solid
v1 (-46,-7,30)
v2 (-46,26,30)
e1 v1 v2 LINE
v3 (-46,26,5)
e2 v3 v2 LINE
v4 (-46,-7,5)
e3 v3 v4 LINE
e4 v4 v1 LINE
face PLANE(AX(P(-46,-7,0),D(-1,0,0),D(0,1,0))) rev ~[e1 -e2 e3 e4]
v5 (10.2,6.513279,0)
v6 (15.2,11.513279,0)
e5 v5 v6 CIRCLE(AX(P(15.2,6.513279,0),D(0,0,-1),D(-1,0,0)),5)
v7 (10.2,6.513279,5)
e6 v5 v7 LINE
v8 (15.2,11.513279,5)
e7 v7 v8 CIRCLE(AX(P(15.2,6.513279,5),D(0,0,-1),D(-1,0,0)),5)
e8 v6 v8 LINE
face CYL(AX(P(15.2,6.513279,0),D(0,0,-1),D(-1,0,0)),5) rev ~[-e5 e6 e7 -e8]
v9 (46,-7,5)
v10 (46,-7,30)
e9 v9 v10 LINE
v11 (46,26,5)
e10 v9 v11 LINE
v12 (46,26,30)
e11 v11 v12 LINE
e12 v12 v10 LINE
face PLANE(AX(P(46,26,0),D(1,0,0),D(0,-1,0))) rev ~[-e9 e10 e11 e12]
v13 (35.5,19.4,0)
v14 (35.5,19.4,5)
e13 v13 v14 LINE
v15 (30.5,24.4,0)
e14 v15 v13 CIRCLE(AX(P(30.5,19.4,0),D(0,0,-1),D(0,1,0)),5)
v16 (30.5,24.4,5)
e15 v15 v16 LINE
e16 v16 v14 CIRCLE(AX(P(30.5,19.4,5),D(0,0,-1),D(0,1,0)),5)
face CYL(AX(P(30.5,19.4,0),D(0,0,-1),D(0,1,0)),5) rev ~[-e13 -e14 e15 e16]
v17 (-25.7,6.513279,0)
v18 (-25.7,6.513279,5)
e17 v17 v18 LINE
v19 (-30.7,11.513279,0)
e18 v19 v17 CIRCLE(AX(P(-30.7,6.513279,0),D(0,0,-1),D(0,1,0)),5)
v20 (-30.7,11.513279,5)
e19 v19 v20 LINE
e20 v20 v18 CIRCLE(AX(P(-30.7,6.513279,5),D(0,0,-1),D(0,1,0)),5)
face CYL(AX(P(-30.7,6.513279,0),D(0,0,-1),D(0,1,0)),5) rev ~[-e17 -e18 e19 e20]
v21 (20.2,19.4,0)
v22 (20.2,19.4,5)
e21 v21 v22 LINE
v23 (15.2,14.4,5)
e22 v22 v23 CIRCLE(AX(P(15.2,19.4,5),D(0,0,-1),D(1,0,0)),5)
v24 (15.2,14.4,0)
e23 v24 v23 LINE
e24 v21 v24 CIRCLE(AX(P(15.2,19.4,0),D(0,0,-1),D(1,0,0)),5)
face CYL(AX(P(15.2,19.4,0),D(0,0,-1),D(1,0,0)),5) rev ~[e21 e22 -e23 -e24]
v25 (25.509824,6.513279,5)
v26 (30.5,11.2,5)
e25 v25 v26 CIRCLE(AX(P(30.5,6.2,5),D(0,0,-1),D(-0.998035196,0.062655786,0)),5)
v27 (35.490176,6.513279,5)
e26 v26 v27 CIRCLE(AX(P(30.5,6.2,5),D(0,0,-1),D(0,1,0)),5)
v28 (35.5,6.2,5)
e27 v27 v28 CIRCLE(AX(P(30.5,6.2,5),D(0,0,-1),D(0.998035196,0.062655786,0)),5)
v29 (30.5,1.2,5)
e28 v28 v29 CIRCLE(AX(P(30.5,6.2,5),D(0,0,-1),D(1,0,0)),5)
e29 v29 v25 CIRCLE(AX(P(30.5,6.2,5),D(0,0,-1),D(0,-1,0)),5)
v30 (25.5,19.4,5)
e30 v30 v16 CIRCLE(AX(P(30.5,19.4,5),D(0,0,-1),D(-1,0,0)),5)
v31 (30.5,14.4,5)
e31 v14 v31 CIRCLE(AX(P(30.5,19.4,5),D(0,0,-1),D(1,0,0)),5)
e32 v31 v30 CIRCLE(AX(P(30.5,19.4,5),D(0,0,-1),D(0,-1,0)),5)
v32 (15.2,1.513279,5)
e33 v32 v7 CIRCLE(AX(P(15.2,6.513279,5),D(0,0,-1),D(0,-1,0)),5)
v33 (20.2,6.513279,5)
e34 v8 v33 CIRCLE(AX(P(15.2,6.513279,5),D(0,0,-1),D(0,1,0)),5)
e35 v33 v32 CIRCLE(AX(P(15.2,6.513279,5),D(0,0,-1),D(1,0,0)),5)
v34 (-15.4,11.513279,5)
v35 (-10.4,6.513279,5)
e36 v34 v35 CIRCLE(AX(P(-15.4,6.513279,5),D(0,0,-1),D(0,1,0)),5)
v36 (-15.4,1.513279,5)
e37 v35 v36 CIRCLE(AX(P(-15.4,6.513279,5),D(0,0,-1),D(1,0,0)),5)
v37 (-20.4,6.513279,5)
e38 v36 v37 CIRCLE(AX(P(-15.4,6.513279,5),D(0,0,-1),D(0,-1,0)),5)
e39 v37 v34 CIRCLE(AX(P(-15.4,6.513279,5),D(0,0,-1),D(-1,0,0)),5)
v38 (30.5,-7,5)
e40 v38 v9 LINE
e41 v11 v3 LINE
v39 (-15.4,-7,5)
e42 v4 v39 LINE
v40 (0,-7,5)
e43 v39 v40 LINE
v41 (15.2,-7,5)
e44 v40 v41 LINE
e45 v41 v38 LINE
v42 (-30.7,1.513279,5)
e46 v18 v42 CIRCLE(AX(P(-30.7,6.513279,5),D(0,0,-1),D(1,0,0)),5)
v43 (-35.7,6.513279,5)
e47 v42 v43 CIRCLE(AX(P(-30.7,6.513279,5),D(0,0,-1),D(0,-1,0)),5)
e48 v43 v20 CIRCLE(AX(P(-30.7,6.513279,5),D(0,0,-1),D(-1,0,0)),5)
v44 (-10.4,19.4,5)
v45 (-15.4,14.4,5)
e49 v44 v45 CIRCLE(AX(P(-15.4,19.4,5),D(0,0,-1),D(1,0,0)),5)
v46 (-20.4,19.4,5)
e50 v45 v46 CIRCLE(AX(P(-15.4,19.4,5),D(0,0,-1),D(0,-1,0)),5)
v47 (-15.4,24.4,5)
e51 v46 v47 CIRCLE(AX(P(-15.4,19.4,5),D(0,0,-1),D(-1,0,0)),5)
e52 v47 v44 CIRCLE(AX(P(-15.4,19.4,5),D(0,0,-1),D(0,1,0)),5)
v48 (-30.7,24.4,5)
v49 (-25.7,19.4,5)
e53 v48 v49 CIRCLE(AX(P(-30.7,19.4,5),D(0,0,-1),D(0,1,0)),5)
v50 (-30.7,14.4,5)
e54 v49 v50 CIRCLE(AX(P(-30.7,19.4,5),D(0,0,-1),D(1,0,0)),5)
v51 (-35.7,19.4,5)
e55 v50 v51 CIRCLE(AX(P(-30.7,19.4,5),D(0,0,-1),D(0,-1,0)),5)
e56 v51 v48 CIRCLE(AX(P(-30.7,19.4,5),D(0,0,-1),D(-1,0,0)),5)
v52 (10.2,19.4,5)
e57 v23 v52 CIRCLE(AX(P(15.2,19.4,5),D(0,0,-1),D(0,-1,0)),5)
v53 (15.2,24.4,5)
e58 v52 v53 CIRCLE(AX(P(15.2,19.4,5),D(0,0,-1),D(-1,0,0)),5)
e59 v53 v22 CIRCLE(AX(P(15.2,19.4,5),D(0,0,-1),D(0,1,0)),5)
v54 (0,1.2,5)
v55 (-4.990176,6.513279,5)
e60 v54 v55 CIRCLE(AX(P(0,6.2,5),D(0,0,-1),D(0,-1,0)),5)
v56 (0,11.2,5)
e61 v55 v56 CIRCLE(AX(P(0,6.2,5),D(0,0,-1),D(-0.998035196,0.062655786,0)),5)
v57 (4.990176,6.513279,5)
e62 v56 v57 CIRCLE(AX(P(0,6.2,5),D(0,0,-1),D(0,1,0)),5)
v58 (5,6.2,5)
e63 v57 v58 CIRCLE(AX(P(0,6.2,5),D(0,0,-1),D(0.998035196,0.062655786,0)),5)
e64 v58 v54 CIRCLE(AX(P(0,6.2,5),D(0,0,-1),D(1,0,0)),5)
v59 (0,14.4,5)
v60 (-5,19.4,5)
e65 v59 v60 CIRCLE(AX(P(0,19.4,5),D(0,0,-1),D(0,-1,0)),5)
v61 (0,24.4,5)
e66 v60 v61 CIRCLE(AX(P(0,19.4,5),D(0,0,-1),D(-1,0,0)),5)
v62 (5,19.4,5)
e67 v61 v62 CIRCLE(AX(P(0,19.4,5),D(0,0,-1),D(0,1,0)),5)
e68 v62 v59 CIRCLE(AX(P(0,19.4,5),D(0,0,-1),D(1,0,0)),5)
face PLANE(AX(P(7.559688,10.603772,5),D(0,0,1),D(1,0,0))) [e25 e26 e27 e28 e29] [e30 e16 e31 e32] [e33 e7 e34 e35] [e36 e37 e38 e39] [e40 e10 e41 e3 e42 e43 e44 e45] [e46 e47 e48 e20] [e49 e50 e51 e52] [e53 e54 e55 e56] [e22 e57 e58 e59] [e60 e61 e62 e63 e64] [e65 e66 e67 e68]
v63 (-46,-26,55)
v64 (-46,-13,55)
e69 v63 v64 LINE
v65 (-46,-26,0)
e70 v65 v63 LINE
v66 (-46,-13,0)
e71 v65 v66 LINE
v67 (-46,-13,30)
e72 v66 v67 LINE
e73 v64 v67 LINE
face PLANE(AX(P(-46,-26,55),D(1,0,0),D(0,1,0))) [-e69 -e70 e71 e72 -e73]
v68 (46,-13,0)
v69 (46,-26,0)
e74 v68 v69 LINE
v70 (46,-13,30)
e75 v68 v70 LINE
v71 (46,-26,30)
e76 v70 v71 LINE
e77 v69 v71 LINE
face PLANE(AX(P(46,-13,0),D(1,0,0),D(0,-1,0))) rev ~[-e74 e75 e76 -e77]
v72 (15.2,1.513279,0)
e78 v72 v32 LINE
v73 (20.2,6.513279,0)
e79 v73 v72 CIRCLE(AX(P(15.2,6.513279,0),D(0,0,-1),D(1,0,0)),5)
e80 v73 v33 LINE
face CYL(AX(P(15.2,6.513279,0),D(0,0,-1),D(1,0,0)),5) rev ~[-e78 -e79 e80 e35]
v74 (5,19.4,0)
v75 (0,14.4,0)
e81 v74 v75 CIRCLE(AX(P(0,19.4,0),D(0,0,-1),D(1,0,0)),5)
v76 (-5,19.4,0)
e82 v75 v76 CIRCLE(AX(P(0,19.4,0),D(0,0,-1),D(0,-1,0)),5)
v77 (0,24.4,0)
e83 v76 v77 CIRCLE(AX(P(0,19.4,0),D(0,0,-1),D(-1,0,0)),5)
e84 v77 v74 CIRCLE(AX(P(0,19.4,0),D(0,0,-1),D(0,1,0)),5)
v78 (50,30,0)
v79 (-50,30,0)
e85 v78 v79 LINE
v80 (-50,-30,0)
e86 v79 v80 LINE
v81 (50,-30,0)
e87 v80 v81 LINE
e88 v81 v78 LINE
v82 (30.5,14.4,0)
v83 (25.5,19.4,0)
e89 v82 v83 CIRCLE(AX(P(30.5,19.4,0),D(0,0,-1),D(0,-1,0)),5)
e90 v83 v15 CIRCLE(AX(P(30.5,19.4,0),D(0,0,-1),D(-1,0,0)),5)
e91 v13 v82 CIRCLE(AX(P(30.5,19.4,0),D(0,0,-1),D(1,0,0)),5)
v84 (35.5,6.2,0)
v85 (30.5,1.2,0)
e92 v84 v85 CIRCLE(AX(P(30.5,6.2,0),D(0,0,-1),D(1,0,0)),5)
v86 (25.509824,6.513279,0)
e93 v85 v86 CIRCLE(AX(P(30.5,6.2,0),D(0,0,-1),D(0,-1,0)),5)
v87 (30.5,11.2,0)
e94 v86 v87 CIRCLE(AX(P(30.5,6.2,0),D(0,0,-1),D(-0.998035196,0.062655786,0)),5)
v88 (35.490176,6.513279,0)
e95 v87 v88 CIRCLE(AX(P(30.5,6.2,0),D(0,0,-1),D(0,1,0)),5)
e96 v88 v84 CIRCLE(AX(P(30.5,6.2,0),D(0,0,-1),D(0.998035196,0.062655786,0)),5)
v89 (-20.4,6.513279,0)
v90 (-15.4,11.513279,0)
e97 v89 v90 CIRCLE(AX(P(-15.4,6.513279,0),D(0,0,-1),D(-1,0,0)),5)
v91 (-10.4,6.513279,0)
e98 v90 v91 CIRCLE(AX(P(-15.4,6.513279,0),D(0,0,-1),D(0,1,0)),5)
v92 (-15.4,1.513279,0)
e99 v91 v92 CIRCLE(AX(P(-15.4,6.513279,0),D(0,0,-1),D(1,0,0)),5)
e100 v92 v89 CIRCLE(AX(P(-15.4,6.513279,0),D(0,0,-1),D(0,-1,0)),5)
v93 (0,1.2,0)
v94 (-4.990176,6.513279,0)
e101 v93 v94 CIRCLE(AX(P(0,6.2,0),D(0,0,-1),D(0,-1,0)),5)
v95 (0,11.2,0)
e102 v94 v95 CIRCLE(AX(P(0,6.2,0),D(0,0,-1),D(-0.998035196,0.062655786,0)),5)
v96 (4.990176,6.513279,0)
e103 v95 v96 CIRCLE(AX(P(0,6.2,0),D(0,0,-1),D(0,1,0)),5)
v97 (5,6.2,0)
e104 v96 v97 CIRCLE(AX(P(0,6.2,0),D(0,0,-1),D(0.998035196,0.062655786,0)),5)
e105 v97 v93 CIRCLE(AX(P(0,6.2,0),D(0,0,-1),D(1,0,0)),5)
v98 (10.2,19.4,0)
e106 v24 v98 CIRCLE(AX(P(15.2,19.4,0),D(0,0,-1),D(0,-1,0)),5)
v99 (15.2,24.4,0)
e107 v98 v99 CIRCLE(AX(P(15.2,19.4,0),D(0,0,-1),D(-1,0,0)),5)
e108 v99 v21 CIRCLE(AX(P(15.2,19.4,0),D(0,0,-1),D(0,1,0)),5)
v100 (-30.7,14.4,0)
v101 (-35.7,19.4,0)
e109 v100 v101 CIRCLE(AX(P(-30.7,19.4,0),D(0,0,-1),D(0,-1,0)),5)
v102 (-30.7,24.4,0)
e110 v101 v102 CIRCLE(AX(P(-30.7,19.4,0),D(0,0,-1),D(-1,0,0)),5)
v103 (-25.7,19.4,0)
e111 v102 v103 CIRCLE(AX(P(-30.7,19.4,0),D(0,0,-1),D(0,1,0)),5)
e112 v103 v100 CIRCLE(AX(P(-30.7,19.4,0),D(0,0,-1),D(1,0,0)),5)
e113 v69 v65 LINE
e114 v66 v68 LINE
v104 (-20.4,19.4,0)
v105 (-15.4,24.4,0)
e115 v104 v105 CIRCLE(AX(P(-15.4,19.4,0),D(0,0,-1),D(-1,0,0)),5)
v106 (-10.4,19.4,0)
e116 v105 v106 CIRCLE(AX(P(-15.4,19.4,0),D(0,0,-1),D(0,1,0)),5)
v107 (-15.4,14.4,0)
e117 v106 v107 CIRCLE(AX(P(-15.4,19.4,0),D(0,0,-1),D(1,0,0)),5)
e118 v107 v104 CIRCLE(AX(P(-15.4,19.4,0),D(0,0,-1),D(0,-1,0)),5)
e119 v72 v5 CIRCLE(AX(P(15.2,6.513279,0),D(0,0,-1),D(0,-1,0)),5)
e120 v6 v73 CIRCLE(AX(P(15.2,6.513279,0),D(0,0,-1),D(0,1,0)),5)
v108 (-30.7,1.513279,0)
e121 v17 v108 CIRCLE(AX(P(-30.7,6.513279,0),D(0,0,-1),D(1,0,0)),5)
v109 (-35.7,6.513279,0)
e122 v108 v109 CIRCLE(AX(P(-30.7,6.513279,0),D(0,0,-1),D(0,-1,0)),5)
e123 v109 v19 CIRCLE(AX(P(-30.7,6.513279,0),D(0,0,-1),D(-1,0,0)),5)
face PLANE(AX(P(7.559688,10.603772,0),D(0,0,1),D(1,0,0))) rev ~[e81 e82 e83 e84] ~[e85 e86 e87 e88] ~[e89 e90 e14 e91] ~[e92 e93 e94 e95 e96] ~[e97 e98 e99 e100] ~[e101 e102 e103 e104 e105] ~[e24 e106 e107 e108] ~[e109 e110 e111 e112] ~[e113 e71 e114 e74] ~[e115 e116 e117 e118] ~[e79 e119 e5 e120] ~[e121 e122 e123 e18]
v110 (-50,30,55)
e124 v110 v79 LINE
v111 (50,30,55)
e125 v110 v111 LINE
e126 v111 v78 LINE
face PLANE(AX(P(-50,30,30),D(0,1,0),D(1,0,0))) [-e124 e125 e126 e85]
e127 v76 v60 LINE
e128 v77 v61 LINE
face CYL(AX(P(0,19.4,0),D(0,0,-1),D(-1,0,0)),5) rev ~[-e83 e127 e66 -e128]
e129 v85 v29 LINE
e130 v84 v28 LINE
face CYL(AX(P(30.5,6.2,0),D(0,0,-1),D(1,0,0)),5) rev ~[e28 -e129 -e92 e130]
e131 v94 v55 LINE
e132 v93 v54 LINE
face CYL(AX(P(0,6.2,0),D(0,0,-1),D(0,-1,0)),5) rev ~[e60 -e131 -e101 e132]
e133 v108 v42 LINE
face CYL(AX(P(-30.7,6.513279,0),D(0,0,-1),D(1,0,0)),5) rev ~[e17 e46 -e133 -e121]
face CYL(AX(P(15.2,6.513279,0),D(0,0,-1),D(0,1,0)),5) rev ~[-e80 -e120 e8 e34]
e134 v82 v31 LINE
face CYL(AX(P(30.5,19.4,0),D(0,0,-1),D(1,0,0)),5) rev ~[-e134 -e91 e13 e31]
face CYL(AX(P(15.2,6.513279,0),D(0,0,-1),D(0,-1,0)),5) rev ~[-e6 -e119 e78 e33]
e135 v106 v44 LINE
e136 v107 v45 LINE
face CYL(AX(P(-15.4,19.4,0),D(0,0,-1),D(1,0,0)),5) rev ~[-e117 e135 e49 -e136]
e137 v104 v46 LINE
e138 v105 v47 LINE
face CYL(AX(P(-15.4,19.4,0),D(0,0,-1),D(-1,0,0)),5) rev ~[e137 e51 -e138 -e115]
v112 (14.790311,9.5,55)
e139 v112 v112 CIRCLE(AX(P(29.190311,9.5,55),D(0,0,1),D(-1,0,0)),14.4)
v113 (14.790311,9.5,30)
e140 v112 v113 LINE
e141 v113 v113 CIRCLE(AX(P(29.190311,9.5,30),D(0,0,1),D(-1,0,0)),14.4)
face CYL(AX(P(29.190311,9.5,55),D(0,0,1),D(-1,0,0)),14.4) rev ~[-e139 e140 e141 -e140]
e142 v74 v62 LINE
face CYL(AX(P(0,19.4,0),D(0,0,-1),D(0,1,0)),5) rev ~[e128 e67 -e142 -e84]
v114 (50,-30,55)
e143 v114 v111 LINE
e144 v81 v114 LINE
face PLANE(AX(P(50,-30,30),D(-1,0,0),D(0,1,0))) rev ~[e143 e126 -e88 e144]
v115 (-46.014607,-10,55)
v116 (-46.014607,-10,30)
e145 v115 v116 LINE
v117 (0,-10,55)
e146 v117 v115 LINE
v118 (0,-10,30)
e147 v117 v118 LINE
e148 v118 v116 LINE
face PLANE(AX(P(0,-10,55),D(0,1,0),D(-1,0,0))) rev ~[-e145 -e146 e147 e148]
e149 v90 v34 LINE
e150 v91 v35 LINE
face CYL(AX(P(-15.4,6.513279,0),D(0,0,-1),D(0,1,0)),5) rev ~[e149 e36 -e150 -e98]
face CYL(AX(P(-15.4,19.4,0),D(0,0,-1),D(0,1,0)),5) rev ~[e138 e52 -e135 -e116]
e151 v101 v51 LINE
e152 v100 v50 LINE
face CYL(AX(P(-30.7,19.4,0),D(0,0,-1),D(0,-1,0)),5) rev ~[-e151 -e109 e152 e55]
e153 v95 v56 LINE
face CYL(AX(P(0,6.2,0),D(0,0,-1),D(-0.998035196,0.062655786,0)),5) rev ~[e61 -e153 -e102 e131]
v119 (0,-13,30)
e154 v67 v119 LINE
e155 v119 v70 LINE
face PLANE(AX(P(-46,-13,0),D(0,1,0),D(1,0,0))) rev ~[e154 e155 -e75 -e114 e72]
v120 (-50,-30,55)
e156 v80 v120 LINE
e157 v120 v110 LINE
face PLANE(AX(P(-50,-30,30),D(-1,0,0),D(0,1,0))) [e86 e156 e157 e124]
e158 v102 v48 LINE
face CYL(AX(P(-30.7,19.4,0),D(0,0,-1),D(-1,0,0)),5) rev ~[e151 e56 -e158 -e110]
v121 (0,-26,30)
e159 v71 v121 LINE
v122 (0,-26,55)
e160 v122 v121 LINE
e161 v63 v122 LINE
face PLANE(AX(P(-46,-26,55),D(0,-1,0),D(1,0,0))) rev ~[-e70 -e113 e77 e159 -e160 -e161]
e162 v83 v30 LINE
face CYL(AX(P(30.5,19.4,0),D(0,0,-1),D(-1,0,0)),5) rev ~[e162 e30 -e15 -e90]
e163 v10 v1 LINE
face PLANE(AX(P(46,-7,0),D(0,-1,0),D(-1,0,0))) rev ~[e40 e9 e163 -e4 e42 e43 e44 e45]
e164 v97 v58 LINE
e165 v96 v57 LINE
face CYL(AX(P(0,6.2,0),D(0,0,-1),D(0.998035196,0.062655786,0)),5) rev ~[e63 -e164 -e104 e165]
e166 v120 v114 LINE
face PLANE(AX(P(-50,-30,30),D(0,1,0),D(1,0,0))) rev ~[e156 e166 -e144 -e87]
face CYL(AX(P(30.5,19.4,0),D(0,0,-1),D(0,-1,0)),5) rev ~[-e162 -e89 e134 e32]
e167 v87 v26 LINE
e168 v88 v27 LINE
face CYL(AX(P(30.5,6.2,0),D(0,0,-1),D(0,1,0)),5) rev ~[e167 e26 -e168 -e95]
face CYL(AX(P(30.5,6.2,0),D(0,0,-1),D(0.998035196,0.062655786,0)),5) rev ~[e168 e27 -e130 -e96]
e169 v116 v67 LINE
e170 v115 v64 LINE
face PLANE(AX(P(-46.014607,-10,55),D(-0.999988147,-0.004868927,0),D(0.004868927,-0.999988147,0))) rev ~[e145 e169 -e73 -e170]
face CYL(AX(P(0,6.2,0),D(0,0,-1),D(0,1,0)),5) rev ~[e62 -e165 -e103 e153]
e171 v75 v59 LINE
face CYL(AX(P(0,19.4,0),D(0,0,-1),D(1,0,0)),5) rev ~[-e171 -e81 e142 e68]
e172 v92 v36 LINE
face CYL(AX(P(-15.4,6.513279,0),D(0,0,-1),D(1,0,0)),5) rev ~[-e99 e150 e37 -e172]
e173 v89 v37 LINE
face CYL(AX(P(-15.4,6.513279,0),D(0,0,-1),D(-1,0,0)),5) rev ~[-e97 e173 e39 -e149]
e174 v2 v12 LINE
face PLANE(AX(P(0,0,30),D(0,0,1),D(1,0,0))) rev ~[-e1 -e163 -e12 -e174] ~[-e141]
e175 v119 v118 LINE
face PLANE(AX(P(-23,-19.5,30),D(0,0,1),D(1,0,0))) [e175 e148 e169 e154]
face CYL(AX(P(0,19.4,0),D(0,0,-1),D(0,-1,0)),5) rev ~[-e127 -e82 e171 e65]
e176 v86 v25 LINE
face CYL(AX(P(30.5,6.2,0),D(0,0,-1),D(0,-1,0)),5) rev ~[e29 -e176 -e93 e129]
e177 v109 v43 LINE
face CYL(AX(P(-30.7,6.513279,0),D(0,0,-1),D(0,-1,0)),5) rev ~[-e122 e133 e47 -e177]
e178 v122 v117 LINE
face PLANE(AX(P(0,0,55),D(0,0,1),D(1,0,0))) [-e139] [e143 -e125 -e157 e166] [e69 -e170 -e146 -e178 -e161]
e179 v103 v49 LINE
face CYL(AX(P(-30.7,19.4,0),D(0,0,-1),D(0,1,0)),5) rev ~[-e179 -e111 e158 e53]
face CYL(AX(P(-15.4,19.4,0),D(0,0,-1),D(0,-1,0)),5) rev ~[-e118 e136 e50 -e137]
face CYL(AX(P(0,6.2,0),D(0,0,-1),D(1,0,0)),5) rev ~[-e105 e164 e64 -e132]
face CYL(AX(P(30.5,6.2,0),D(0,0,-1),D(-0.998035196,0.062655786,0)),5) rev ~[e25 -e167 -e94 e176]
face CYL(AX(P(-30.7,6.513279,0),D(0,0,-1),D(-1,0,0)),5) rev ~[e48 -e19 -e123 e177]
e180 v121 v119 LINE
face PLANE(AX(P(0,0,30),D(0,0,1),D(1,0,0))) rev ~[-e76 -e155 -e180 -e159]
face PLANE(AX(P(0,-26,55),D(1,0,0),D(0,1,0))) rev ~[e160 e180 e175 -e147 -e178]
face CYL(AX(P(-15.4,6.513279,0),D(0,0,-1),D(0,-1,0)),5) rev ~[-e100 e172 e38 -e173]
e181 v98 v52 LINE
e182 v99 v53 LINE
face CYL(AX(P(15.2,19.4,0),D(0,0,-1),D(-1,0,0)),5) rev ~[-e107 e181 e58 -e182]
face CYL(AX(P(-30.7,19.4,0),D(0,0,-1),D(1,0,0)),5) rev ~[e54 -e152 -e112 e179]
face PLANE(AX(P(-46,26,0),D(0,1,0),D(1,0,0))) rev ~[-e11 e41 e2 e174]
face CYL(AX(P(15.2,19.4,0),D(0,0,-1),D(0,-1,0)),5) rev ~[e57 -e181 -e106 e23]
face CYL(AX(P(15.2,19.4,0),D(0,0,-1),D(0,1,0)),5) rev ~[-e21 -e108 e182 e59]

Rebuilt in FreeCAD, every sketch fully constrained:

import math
import FreeCAD as App
import Part
import Sketcher
from FreeCAD import Vector

doc = App.newDocument("Part")
body = doc.addObject("PartDesign::Body", "Body")

# Sketch on XY plane
sketch1 = doc.addObject("Sketcher::SketchObject", "Sketch")
body.addObject(sketch1)
sketch1.AttachmentSupport = (doc.XY_Plane, [""])
sketch1.MapMode = "FlatFace"
sketch1.addGeometry([
    Part.LineSegment(Vector(50, -30, 0), Vector(50, 30, 0)),  # 0
    Part.LineSegment(Vector(50, 30, 0), Vector(-50, 30, 0)),  # 1
    Part.LineSegment(Vector(-50, 30, 0), Vector(-50, -30, 0)),  # 2
    Part.LineSegment(Vector(-50, -30, 0), Vector(50, -30, 0)),  # 3
    Part.LineSegment(Vector(46, 26, 0), Vector(46, -7, 0)),  # 4
    Part.LineSegment(Vector(46, -7, 0), Vector(-46, -7, 0)),  # 5
    Part.LineSegment(Vector(-46, -7, 0), Vector(-46, 26, 0)),  # 6
    Part.LineSegment(Vector(-46, 26, 0), Vector(46, 26, 0)),  # 7
    Part.LineSegment(Vector(46, -13, 0), Vector(46, -26, 0)),  # 8
    Part.LineSegment(Vector(46, -26, 0), Vector(-46, -26, 0)),  # 9
    Part.LineSegment(Vector(-46, -26, 0), Vector(-46, -13, 0)),  # 10
    Part.LineSegment(Vector(-46, -13, 0), Vector(46, -13, 0)),  # 11
], False)
sketch1.addConstraint([
    Sketcher.Constraint("Coincident", 0, 2, 1, 1),
    Sketcher.Constraint("Coincident", 1, 2, 2, 1),
    Sketcher.Constraint("Coincident", 2, 2, 3, 1),
    Sketcher.Constraint("Coincident", 3, 2, 0, 1),
    Sketcher.Constraint("Coincident", 4, 2, 5, 1),
    Sketcher.Constraint("Coincident", 5, 2, 6, 1),
    Sketcher.Constraint("Coincident", 6, 2, 7, 1),
    Sketcher.Constraint("Coincident", 7, 2, 4, 1),
    Sketcher.Constraint("Coincident", 8, 2, 9, 1),
    Sketcher.Constraint("Coincident", 9, 2, 10, 1),
    Sketcher.Constraint("Coincident", 10, 2, 11, 1),
    Sketcher.Constraint("Coincident", 11, 2, 8, 1),
    Sketcher.Constraint("Vertical", 0),
    Sketcher.Constraint("Horizontal", 1),
    Sketcher.Constraint("Vertical", 2),
    Sketcher.Constraint("Horizontal", 3),
    Sketcher.Constraint("Vertical", 4),
    Sketcher.Constraint("Horizontal", 5),
    Sketcher.Constraint("Vertical", 6),
    Sketcher.Constraint("Horizontal", 7),
    Sketcher.Constraint("Vertical", 8),
    Sketcher.Constraint("Horizontal", 9),
    Sketcher.Constraint("Vertical", 10),
    Sketcher.Constraint("Horizontal", 11),
    Sketcher.Constraint("Symmetric", 0, 2, 2, 2, -1, 1),
    Sketcher.Constraint("Symmetric", 6, 2, 8, 2, -1, 1),
    Sketcher.Constraint("Vertical", 7, 2, 8, 2),
    Sketcher.Constraint("Vertical", 6, 2, 9, 2),
    Sketcher.Constraint("DistanceX", 1, 2, 1, 1, 100.0),
    Sketcher.Constraint("DistanceX", 5, 2, 5, 1, 92.0),
    Sketcher.Constraint("DistanceY", 0, 1, 0, 2, 60.0),
    Sketcher.Constraint("DistanceY", 4, 2, 4, 1, 33.0),
    Sketcher.Constraint("DistanceY", 8, 2, 8, 1, 13.0),
    Sketcher.Constraint("DistanceY", 4, 2, -1, 1, 7.0),
])
pad1 = doc.addObject("PartDesign::Pad", "Pad")
body.addObject(pad1)
pad1.Profile = sketch1
pad1.Length = 30

# Sketch on XY plane
sketch2 = doc.addObject("Sketcher::SketchObject", "Sketch001")
body.addObject(sketch2)
sketch2.AttachmentSupport = (doc.XY_Plane, [""])
sketch2.MapMode = "FlatFace"
sketch2.addGeometry([
    Part.LineSegment(Vector(46, 26, 0), Vector(-46, 26, 0)),  # 0
    Part.LineSegment(Vector(-46, 26, 0), Vector(-46, -7, 0)),  # 1
    Part.LineSegment(Vector(-46, -7, 0), Vector(-15.4, -7, 0)),  # 2
    Part.LineSegment(Vector(-15.4, -7, 0), Vector(0, -7, 0)),  # 3
    Part.LineSegment(Vector(0, -7, 0), Vector(15.2, -7, 0)),  # 4
    Part.LineSegment(Vector(15.2, -7, 0), Vector(30.5, -7, 0)),  # 5
    Part.LineSegment(Vector(30.5, -7, 0), Vector(46, -7, 0)),  # 6
    Part.LineSegment(Vector(46, -7, 0), Vector(46, 26, 0)),  # 7
    Part.ArcOfCircle(Part.Circle(Vector(15.2, 19.4, 0), Vector(0, 0, 1), 5), math.radians(180), math.radians(270)),  # 8
    Part.ArcOfCircle(Part.Circle(Vector(15.2, 19.4, 0), Vector(0, 0, 1), 5), math.radians(90), math.radians(180)),  # 9
    Part.ArcOfCircle(Part.Circle(Vector(15.2, 19.4, 0), Vector(0, 0, 1), 5), math.radians(0), math.radians(90)),  # 10
    Part.ArcOfCircle(Part.Circle(Vector(15.2, 19.4, 0), Vector(0, 0, 1), 5), math.radians(-90), math.radians(0)),  # 11
    Part.ArcOfCircle(Part.Circle(Vector(0, 19.4, 0), Vector(0, 0, 1), 5), math.radians(0), math.radians(90)),  # 12
    Part.ArcOfCircle(Part.Circle(Vector(0, 19.4, 0), Vector(0, 0, 1), 5), math.radians(-90), math.radians(0)),  # 13
    Part.ArcOfCircle(Part.Circle(Vector(0, 19.4, 0), Vector(0, 0, 1), 5), math.radians(180), math.radians(270)),  # 14
    Part.ArcOfCircle(Part.Circle(Vector(0, 19.4, 0), Vector(0, 0, 1), 5), math.radians(90), math.radians(180)),  # 15
    Part.ArcOfCircle(Part.Circle(Vector(-15.4, 19.4, 0), Vector(0, 0, 1), 5), math.radians(-90), math.radians(0)),  # 16
    Part.ArcOfCircle(Part.Circle(Vector(-15.4, 19.4, 0), Vector(0, 0, 1), 5), math.radians(180), math.radians(270)),  # 17
    Part.ArcOfCircle(Part.Circle(Vector(-15.4, 19.4, 0), Vector(0, 0, 1), 5), math.radians(90), math.radians(180)),  # 18
    Part.ArcOfCircle(Part.Circle(Vector(-15.4, 19.4, 0), Vector(0, 0, 1), 5), math.radians(0), math.radians(90)),  # 19
    Part.ArcOfCircle(Part.Circle(Vector(-15.4, 6.51, 0), Vector(0, 0, 1), 5), math.radians(0), math.radians(90)),  # 20
    Part.ArcOfCircle(Part.Circle(Vector(-15.4, 6.51, 0), Vector(0, 0, 1), 5), math.radians(-90), math.radians(0)),  # 21
    Part.ArcOfCircle(Part.Circle(Vector(-15.4, 6.51, 0), Vector(0, 0, 1), 5), math.radians(180), math.radians(270)),  # 22
    Part.ArcOfCircle(Part.Circle(Vector(-15.4, 6.51, 0), Vector(0, 0, 1), 5), math.radians(90), math.radians(180)),  # 23
    Part.ArcOfCircle(Part.Circle(Vector(-30.7, 6.51, 0), Vector(0, 0, 1), 5), math.radians(180), math.radians(270)),  # 24
    Part.ArcOfCircle(Part.Circle(Vector(-30.7, 6.51, 0), Vector(0, 0, 1), 5), math.radians(90), math.radians(180)),  # 25
    Part.ArcOfCircle(Part.Circle(Vector(-30.7, 6.51, 0), Vector(0, 0, 1), 5), math.radians(0), math.radians(90)),  # 26
    Part.ArcOfCircle(Part.Circle(Vector(-30.7, 6.51, 0), Vector(0, 0, 1), 5), math.radians(-90), math.radians(0)),  # 27
    Part.ArcOfCircle(Part.Circle(Vector(-30.7, 19.4, 0), Vector(0, 0, 1), 5), math.radians(180), math.radians(270)),  # 28
    Part.ArcOfCircle(Part.Circle(Vector(-30.7, 19.4, 0), Vector(0, 0, 1), 5), math.radians(90), math.radians(180)),  # 29
    Part.ArcOfCircle(Part.Circle(Vector(-30.7, 19.4, 0), Vector(0, 0, 1), 5), math.radians(0), math.radians(90)),  # 30
    Part.ArcOfCircle(Part.Circle(Vector(-30.7, 19.4, 0), Vector(0, 0, 1), 5), math.radians(-90), math.radians(0)),  # 31
    Part.ArcOfCircle(Part.Circle(Vector(0, 6.2, 0), Vector(0, 0, 1), 5), math.radians(4), math.radians(90)),  # 32
    Part.ArcOfCircle(Part.Circle(Vector(0, 6.2, 0), Vector(0, 0, 1), 5), math.radians(0), math.radians(3.59)),  # 33
    Part.ArcOfCircle(Part.Circle(Vector(0, 6.2, 0), Vector(0, 0, 1), 5), math.radians(-90), math.radians(0)),  # 34
    Part.ArcOfCircle(Part.Circle(Vector(0, 6.2, 0), Vector(0, 0, 1), 5), math.radians(176), math.radians(270)),  # 35
    Part.ArcOfCircle(Part.Circle(Vector(0, 6.2, 0), Vector(0, 0, 1), 5), math.radians(90), math.radians(176)),  # 36
    Part.ArcOfCircle(Part.Circle(Vector(30.5, 6.2, 0), Vector(0, 0, 1), 5), math.radians(176), math.radians(270)),  # 37
    Part.ArcOfCircle(Part.Circle(Vector(30.5, 6.2, 0), Vector(0, 0, 1), 5), math.radians(90), math.radians(176)),  # 38
    Part.ArcOfCircle(Part.Circle(Vector(30.5, 6.2, 0), Vector(0, 0, 1), 5), math.radians(4), math.radians(90)),  # 39
    Part.ArcOfCircle(Part.Circle(Vector(30.5, 6.2, 0), Vector(0, 0, 1), 5), math.radians(0), math.radians(3.59)),  # 40
    Part.ArcOfCircle(Part.Circle(Vector(30.5, 6.2, 0), Vector(0, 0, 1), 5), math.radians(-90), math.radians(0)),  # 41
    Part.ArcOfCircle(Part.Circle(Vector(30.5, 19.4, 0), Vector(0, 0, 1), 5), math.radians(180), math.radians(270)),  # 42
    Part.ArcOfCircle(Part.Circle(Vector(30.5, 19.4, 0), Vector(0, 0, 1), 5), math.radians(90), math.radians(180)),  # 43
    Part.ArcOfCircle(Part.Circle(Vector(30.5, 19.4, 0), Vector(0, 0, 1), 5), math.radians(0), math.radians(90)),  # 44
    Part.ArcOfCircle(Part.Circle(Vector(30.5, 19.4, 0), Vector(0, 0, 1), 5), math.radians(-90), math.radians(0)),  # 45
    Part.ArcOfCircle(Part.Circle(Vector(15.2, 6.51, 0), Vector(0, 0, 1), 5), math.radians(-90), math.radians(0)),  # 46
    Part.ArcOfCircle(Part.Circle(Vector(15.2, 6.51, 0), Vector(0, 0, 1), 5), math.radians(180), math.radians(270)),  # 47
    Part.ArcOfCircle(Part.Circle(Vector(15.2, 6.51, 0), Vector(0, 0, 1), 5), math.radians(90), math.radians(180)),  # 48
    Part.ArcOfCircle(Part.Circle(Vector(15.2, 6.51, 0), Vector(0, 0, 1), 5), math.radians(0), math.radians(90)),  # 49
], False)
sketch2.addConstraint([
    Sketcher.Constraint("Coincident", 0, 2, 1, 1),
    Sketcher.Constraint("Coincident", 1, 2, 2, 1),
    Sketcher.Constraint("Coincident", 2, 2, 3, 1),
    Sketcher.Constraint("Coincident", 3, 2, 4, 1),
    Sketcher.Constraint("Coincident", 4, 2, 5, 1),
    Sketcher.Constraint("Coincident", 5, 2, 6, 1),
    Sketcher.Constraint("Coincident", 6, 2, 7, 1),
    Sketcher.Constraint("Coincident", 7, 2, 0, 1),
    Sketcher.Constraint("Tangent", 8, 1, 9, 2),
    Sketcher.Constraint("Tangent", 9, 1, 10, 2),
    Sketcher.Constraint("Tangent", 10, 1, 11, 2),
    Sketcher.Constraint("Tangent", 11, 1, 8, 2),
    Sketcher.Constraint("Tangent", 12, 1, 13, 2),
    Sketcher.Constraint("Tangent", 13, 1, 14, 2),
    Sketcher.Constraint("Tangent", 14, 1, 15, 2),
    Sketcher.Constraint("Tangent", 15, 1, 12, 2),
    Sketcher.Constraint("Tangent", 16, 1, 17, 2),
    Sketcher.Constraint("Tangent", 17, 1, 18, 2),
    Sketcher.Constraint("Tangent", 18, 1, 19, 2),
    Sketcher.Constraint("Tangent", 19, 1, 16, 2),
    Sketcher.Constraint("Tangent", 20, 1, 21, 2),
    Sketcher.Constraint("Tangent", 21, 1, 22, 2),
    Sketcher.Constraint("Tangent", 22, 1, 23, 2),
    Sketcher.Constraint("Tangent", 23, 1, 20, 2),
    Sketcher.Constraint("Tangent", 24, 1, 25, 2),
    Sketcher.Constraint("Tangent", 25, 1, 26, 2),
    Sketcher.Constraint("Tangent", 26, 1, 27, 2),
    Sketcher.Constraint("Tangent", 27, 1, 24, 2),
    Sketcher.Constraint("Tangent", 28, 1, 29, 2),
    Sketcher.Constraint("Tangent", 29, 1, 30, 2),
    Sketcher.Constraint("Tangent", 30, 1, 31, 2),
    Sketcher.Constraint("Tangent", 31, 1, 28, 2),
    Sketcher.Constraint("Tangent", 32, 1, 33, 2),
    Sketcher.Constraint("Tangent", 33, 1, 34, 2),
    Sketcher.Constraint("Tangent", 34, 1, 35, 2),
    Sketcher.Constraint("Tangent", 35, 1, 36, 2),
    Sketcher.Constraint("Tangent", 36, 1, 32, 2),
    Sketcher.Constraint("Tangent", 37, 1, 38, 2),
    Sketcher.Constraint("Tangent", 38, 1, 39, 2),
    Sketcher.Constraint("Tangent", 39, 1, 40, 2),
    Sketcher.Constraint("Tangent", 40, 1, 41, 2),
    Sketcher.Constraint("Tangent", 41, 1, 37, 2),
    Sketcher.Constraint("Tangent", 42, 1, 43, 2),
    Sketcher.Constraint("Tangent", 43, 1, 44, 2),
    Sketcher.Constraint("Tangent", 44, 1, 45, 2),
    Sketcher.Constraint("Tangent", 45, 1, 42, 2),
    Sketcher.Constraint("Tangent", 46, 1, 47, 2),
    Sketcher.Constraint("Tangent", 47, 1, 48, 2),
    Sketcher.Constraint("Tangent", 48, 1, 49, 2),
    Sketcher.Constraint("Tangent", 49, 1, 46, 2),
    Sketcher.Constraint("Horizontal", 0),
    Sketcher.Constraint("Vertical", 1),
    Sketcher.Constraint("Horizontal", 2),
    Sketcher.Constraint("Horizontal", 3),
    Sketcher.Constraint("Horizontal", 4),
    Sketcher.Constraint("Horizontal", 5),
    Sketcher.Constraint("Horizontal", 6),
    Sketcher.Constraint("Vertical", 7),
    Sketcher.Constraint("Coincident", 34, 3, 32, 3),
    Sketcher.Constraint("Coincident", 39, 3, 37, 3),
    Sketcher.Constraint("Equal", 8, 9),
    Sketcher.Constraint("Equal", 11, 12),
    Sketcher.Constraint("Equal", 12, 13),
    Sketcher.Constraint("Equal", 15, 16),
    Sketcher.Constraint("Equal", 16, 17),
    Sketcher.Constraint("Equal", 19, 20),
    Sketcher.Constraint("Equal", 20, 21),
    Sketcher.Constraint("Equal", 23, 24),
    Sketcher.Constraint("Equal", 24, 25),
    Sketcher.Constraint("Equal", 27, 28),
    Sketcher.Constraint("Equal", 28, 29),
    Sketcher.Constraint("Equal", 31, 32),
    Sketcher.Constraint("Equal", 36, 37),
    Sketcher.Constraint("Equal", 41, 42),
    Sketcher.Constraint("Equal", 42, 43),
    Sketcher.Constraint("Equal", 45, 46),
    Sketcher.Constraint("Equal", 46, 47),
    Sketcher.Constraint("Symmetric", 12, 1, 14, 1, -2),
    Sketcher.Constraint("Symmetric", 32, 1, 35, 1, -2),
    Sketcher.Constraint("PointOnObject", 3, 2, -2),
    Sketcher.Constraint("PointOnObject", 13, 1, -2),
    Sketcher.Constraint("PointOnObject", 15, 1, -2),
    Sketcher.Constraint("PointOnObject", 34, 1, -2),
    Sketcher.Constraint("PointOnObject", 36, 1, -2),
    Sketcher.Constraint("Horizontal", 11, 3, 12, 3),
    Sketcher.Constraint("Horizontal", 15, 3, 16, 3),
    Sketcher.Constraint("Horizontal", 23, 3, 24, 3),
    Sketcher.Constraint("Horizontal", 19, 3, 28, 3),
    Sketcher.Constraint("Horizontal", 36, 3, 37, 3),
    Sketcher.Constraint("Horizontal", 31, 3, 42, 3),
    Sketcher.Constraint("Horizontal", 27, 3, 46, 3),
    Sketcher.Constraint("Horizontal", 45, 3, 8, 1),
    Sketcher.Constraint("Horizontal", 8, 1, 10, 1),
    Sketcher.Constraint("Horizontal", 10, 1, 12, 1),
    Sketcher.Constraint("Horizontal", 14, 1, 17, 1),
    Sketcher.Constraint("Horizontal", 17, 1, 19, 1),
    Sketcher.Constraint("Horizontal", 49, 3, 20, 1),
    Sketcher.Constraint("Horizontal", 20, 1, 22, 1),
    Sketcher.Constraint("Horizontal", 22, 1, 24, 1),
    Sketcher.Constraint("Horizontal", 24, 1, 26, 1),
    Sketcher.Constraint("Horizontal", 19, 1, 28, 1),
    Sketcher.Constraint("Horizontal", 28, 1, 30, 1),
    Sketcher.Constraint("Horizontal", 26, 1, 32, 1),
    Sketcher.Constraint("Horizontal", 41, 3, 33, 1),
    Sketcher.Constraint("Horizontal", 35, 1, 37, 1),
    Sketcher.Constraint("Horizontal", 37, 1, 39, 1),
    Sketcher.Constraint("Horizontal", 33, 1, 40, 1),
    Sketcher.Constraint("Horizontal", 30, 1, 42, 1),
    Sketcher.Constraint("Horizontal", 42, 1, 44, 1),
    Sketcher.Constraint("Horizontal", 39, 1, 47, 1),
    Sketcher.Constraint("Horizontal", 47, 1, 49, 1),
    Sketcher.Constraint("Vertical", 19, 3, 20, 3),
    Sketcher.Constraint("Vertical", 27, 3, 28, 3),
    Sketcher.Constraint("Vertical", 41, 3, 42, 3),
    Sketcher.Constraint("Vertical", 11, 3, 46, 3),
    Sketcher.Constraint("Vertical", 23, 3, 2, 2),
    Sketcher.Constraint("Vertical", 49, 3, 4, 2),
    Sketcher.Constraint("Vertical", 45, 3, 5, 2),
    Sketcher.Constraint("Vertical", 4, 2, 9, 1),
    Sketcher.Constraint("Vertical", 9, 1, 11, 1),
    Sketcher.Constraint("Vertical", 2, 2, 16, 1),
    Sketcher.Constraint("Vertical", 16, 1, 18, 1),
    Sketcher.Constraint("Vertical", 18, 1, 21, 1),
    Sketcher.Constraint("Vertical", 21, 1, 23, 1),
    Sketcher.Constraint("Vertical", 31, 3, 25, 1),
    Sketcher.Constraint("Vertical", 25, 1, 27, 1),
    Sketcher.Constraint("Vertical", 27, 1, 29, 1),
    Sketcher.Constraint("Vertical", 29, 1, 31, 1),
    Sketcher.Constraint("Vertical", 5, 2, 38, 1),
    Sketcher.Constraint("Vertical", 38, 1, 41, 1),
    Sketcher.Constraint("Vertical", 41, 1, 43, 1),
    Sketcher.Constraint("Vertical", 43, 1, 45, 1),
    Sketcher.Constraint("Vertical", 11, 1, 46, 1),
    Sketcher.Constraint("Vertical", 46, 1, 48, 1),
    Sketcher.Constraint("Radius", 8, 5.0),
    Sketcher.Constraint("DistanceX", 0, 2, 0, 1, 92.0),
    Sketcher.Constraint("DistanceY", 1, 2, 1, 1, 33.0),
    Sketcher.Constraint("DistanceX", 2, 1, 2, 2, 30.6),
    Sketcher.Constraint("DistanceX", 3, 1, 3, 2, 15.4),
    Sketcher.Constraint("DistanceX", 4, 1, 4, 2, 15.2),
    Sketcher.Constraint("DistanceX", 5, 1, 5, 2, 15.3),
    Sketcher.Constraint("DistanceY", -1, 1, 0, 2, 26.0),
    Sketcher.Constraint("DistanceY", -1, 1, 8, 3, 19.4),
    Sketcher.Constraint("DistanceX", 24, 3, -1, 1, 30.7),
    Sketcher.Constraint("DistanceY", -1, 1, 32, 3, 6.2),
    Sketcher.Constraint("DistanceY", -1, 1, 20, 3, 6.513279),
])
pad2 = doc.addObject("PartDesign::Pad", "Pad001")
body.addObject(pad2)
pad2.Profile = sketch2
pad2.Length = 5

# Sketch on XY plane
sketch3 = doc.addObject("Sketcher::SketchObject", "Sketch002")
body.addObject(sketch3)
sketch3.AttachmentSupport = (doc.XY_Plane, [""])
sketch3.MapMode = "FlatFace"
sketch3.AttachmentOffset = App.Placement(Vector(0, 0, 30), App.Rotation())
sketch3.addGeometry([
    Part.LineSegment(Vector(-50, 30, 0), Vector(-50, -30, 0)),
    Part.LineSegment(Vector(-50, -30, 0), Vector(50, -30, 0)),
    Part.LineSegment(Vector(50, -30, 0), Vector(50, 30, 0)),
    Part.LineSegment(Vector(50, 30, 0), Vector(-50, 30, 0)),
], False)
sketch3.addConstraint([
    Sketcher.Constraint("Coincident", 0, 2, 1, 1),
    Sketcher.Constraint("Coincident", 1, 2, 2, 1),
    Sketcher.Constraint("Coincident", 2, 2, 3, 1),
    Sketcher.Constraint("Coincident", 3, 2, 0, 1),
    Sketcher.Constraint("Vertical", 0),
    Sketcher.Constraint("Horizontal", 1),
    Sketcher.Constraint("Vertical", 2),
    Sketcher.Constraint("Horizontal", 3),
    Sketcher.Constraint("Symmetric", 0, 2, 2, 2, -1, 1),
    Sketcher.Constraint("DistanceX", 1, 1, 1, 2, 100.0),
    Sketcher.Constraint("DistanceY", 0, 2, 0, 1, 60.0),
])
pad3 = doc.addObject("PartDesign::Pad", "Pad002")
body.addObject(pad3)
pad3.Profile = sketch3
pad3.Length = 25

# Sketch on XY plane
sketch4 = doc.addObject("Sketcher::SketchObject", "Sketch003")
body.addObject(sketch4)
sketch4.AttachmentSupport = (doc.XY_Plane, [""])
sketch4.MapMode = "FlatFace"
sketch4.AttachmentOffset = App.Placement(Vector(0, 0, 55), App.Rotation())
sketch4.addGeometry(Part.Circle(Vector(29, 10, 0), Vector(0, 0, 1), 14), False)
sketch4.addConstraint([
    Sketcher.Constraint("Diameter", 0, 28.8),
    Sketcher.Constraint("DistanceY", -1, 1, 0, 3, 9.5),
    Sketcher.Constraint("DistanceX", -1, 1, 0, 3, 29.190311),
])
pocket1 = doc.addObject("PartDesign::Pocket", "Pocket")
body.addObject(pocket1)
pocket1.Profile = sketch4
pocket1.Length = 25

# Sketch on XY plane
sketch5 = doc.addObject("Sketcher::SketchObject", "Sketch004")
body.addObject(sketch5)
sketch5.AttachmentSupport = (doc.XY_Plane, [""])
sketch5.MapMode = "FlatFace"
sketch5.AttachmentOffset = App.Placement(Vector(0, 0, 55), App.Rotation())
sketch5.addGeometry([
    Part.LineSegment(Vector(-46, -13, 0), Vector(-46, -26, 0)),  # 0
    Part.LineSegment(Vector(-46, -26, 0), Vector(0, -26, 0)),  # 1
    Part.LineSegment(Vector(0, -26, 0), Vector(0, -10, 0)),  # 2
    Part.LineSegment(Vector(0, -10, 0), Vector(-46, -10, 0)),  # 3
    Part.LineSegment(Vector(-46, -10, 0), Vector(-46, -13, 0)),  # 4
], False)
sketch5.addConstraint([
    Sketcher.Constraint("Coincident", 0, 2, 1, 1),
    Sketcher.Constraint("Coincident", 1, 2, 2, 1),
    Sketcher.Constraint("Coincident", 2, 2, 3, 1),
    Sketcher.Constraint("Coincident", 3, 2, 4, 1),
    Sketcher.Constraint("Coincident", 4, 2, 0, 1),
    Sketcher.Constraint("Vertical", 0),
    Sketcher.Constraint("Horizontal", 1),
    Sketcher.Constraint("Vertical", 2),
    Sketcher.Constraint("Horizontal", 3),
    Sketcher.Constraint("PointOnObject", 1, 2, -2),
    Sketcher.Constraint("DistanceX", 1, 1, 1, 2, 46.0),
    Sketcher.Constraint("DistanceY", 0, 2, 0, 1, 13.0),
    Sketcher.Constraint("DistanceY", 2, 1, 2, 2, 16.0),
    Sketcher.Constraint("DistanceY", 0, 2, -1, 1, 26.0),
    Sketcher.Constraint("DistanceX", 3, 2, 3, 1, 46.014607),
])
pocket2 = doc.addObject("PartDesign::Pocket", "Pocket001")
body.addObject(pocket2)
pocket2.Profile = sketch5
pocket2.Length = 25

doc.recompute()
